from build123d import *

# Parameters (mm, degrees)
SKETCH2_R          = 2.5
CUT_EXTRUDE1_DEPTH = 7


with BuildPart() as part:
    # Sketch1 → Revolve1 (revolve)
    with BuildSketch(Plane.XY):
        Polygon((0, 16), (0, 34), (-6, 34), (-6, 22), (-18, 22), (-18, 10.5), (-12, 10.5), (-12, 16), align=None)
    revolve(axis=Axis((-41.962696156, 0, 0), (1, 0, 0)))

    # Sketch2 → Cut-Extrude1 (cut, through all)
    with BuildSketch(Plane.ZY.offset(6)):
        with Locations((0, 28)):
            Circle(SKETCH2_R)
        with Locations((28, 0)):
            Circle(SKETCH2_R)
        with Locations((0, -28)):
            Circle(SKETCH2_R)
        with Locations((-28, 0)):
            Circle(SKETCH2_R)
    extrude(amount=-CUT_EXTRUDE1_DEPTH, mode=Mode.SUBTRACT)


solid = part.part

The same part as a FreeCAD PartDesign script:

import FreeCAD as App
import Part
import Sketcher

V = App.Vector

doc = App.newDocument("Part")
body = doc.addObject("PartDesign::Body", "Body")

# Sketch on XY plane
sketch1 = body.newObject("Sketcher::SketchObject", "Sketch")
sketch1.AttachmentSupport = (doc.getObject("XY_Plane"), [""])
sketch1.MapMode = "FlatFace"
sketch1.addGeometry(Part.LineSegment(V(0, 16, 0), V(0, 34, 0)), False)
sketch1.addGeometry(Part.LineSegment(V(0, 34, 0), V(-6, 34, 0)), False)
sketch1.addGeometry(Part.LineSegment(V(-6, 34, 0), V(-6, 22, 0)), False)
sketch1.addGeometry(Part.LineSegment(V(-6, 22, 0), V(-18, 22, 0)), False)
sketch1.addGeometry(Part.LineSegment(V(-18, 22, 0), V(-18, 10, 0)), False)
sketch1.addGeometry(Part.LineSegment(V(-18, 10, 0), V(-12, 10, 0)), False)
sketch1.addGeometry(Part.LineSegment(V(-12, 10, 0), V(-12, 16, 0)), False)
sketch1.addGeometry(Part.LineSegment(V(-12, 16, 0), V(0, 16, 0)), False)
sketch1.addConstraint(Sketcher.Constraint("Coincident", 0, 2, 1, 1))
sketch1.addConstraint(Sketcher.Constraint("Coincident", 1, 2, 2, 1))
sketch1.addConstraint(Sketcher.Constraint("Coincident", 2, 2, 3, 1))
sketch1.addConstraint(Sketcher.Constraint("Coincident", 3, 2, 4, 1))
sketch1.addConstraint(Sketcher.Constraint("Coincident", 4, 2, 5, 1))
sketch1.addConstraint(Sketcher.Constraint("Coincident", 5, 2, 6, 1))
sketch1.addConstraint(Sketcher.Constraint("Coincident", 6, 2, 7, 1))
sketch1.addConstraint(Sketcher.Constraint("Coincident", 7, 2, 0, 1))
sketch1.addConstraint(Sketcher.Constraint("Vertical", 0))
sketch1.addConstraint(Sketcher.Constraint("Horizontal", 1))
sketch1.addConstraint(Sketcher.Constraint("Vertical", 2))
sketch1.addConstraint(Sketcher.Constraint("Horizontal", 3))
sketch1.addConstraint(Sketcher.Constraint("Vertical", 4))
sketch1.addConstraint(Sketcher.Constraint("Horizontal", 5))
sketch1.addConstraint(Sketcher.Constraint("Vertical", 6))
sketch1.addConstraint(Sketcher.Constraint("Horizontal", 7))
sketch1.addConstraint(Sketcher.Constraint("PointOnObject", 0, 2, -2))
sketch1.addConstraint(Sketcher.Constraint("Equal", 1, 5))
sketch1.addConstraint(Sketcher.Constraint("Equal", 7, 2))
sketch1.addConstraint(Sketcher.Constraint("DistanceX", 1, 2, 1, 1, 6.0))
sketch1.addConstraint(Sketcher.Constraint("DistanceX", 3, 2, 3, 1, 12.0))
sketch1.addConstraint(Sketcher.Constraint("DistanceY", 0, 1, 0, 2, 18.0))
sketch1.addConstraint(Sketcher.Constraint("DistanceY", 4, 2, 4, 1, 11.5))
sketch1.addConstraint(Sketcher.Constraint("DistanceY", -1, 1, 0, 2, 34.0))
revolution = body.newObject("PartDesign::Revolution", "Revolution")
revolution.Profile = sketch1
revolution.ReferenceAxis = (sketch1, ["H_Axis"])
revolution.Angle = 360

# Sketch on YZ plane
sketch2 = body.newObject("Sketcher::SketchObject", "Sketch001")
sketch2.AttachmentSupport = (doc.getObject("YZ_Plane"), [""])
sketch2.MapMode = "FlatFace"
sketch2.AttachmentOffset = App.Placement(V(0, 0, -6), App.Rotation())
sketch2.addGeometry(Part.Circle(V(28, 0, 0), V(0, 0, 1), 2.5), False)
sketch2.addGeometry(Part.Circle(V(0, 28, 0), V(0, 0, 1), 2.5), False)
sketch2.addGeometry(Part.Circle(V(-28, 0, 0), V(0, 0, 1), 2.5), False)
sketch2.addGeometry(Part.Circle(V(0, -28, 0), V(0, 0, 1), 2.5), False)
sketch2.addConstraint(Sketcher.Constraint("Equal", 0, 1))
sketch2.addConstraint(Sketcher.Constraint("Equal", 1, 2))
sketch2.addConstraint(Sketcher.Constraint("Equal", 2, 3))
sketch2.addConstraint(Sketcher.Constraint("Symmetric", 0, 3, 2, 3, -1, 1))
sketch2.addConstraint(Sketcher.Constraint("Symmetric", 1, 3, 3, 3, -1, 1))
sketch2.addConstraint(Sketcher.Constraint("PointOnObject", 0, 3, -1))
sketch2.addConstraint(Sketcher.Constraint("PointOnObject", 1, 3, -2))
sketch2.addConstraint(Sketcher.Constraint("Diameter", 0, 5.0))
sketch2.addConstraint(Sketcher.Constraint("DistanceX", -1, 1, 0, 3, 28.0))
sketch2.addConstraint(Sketcher.Constraint("DistanceY", -1, 1, 1, 3, 28.0))
pocket1 = body.newObject("PartDesign::Pocket", "Pocket")
pocket1.Profile = sketch2
pocket1.Type = "ThroughAll"
pocket1.Reversed = True

doc.recompute()
